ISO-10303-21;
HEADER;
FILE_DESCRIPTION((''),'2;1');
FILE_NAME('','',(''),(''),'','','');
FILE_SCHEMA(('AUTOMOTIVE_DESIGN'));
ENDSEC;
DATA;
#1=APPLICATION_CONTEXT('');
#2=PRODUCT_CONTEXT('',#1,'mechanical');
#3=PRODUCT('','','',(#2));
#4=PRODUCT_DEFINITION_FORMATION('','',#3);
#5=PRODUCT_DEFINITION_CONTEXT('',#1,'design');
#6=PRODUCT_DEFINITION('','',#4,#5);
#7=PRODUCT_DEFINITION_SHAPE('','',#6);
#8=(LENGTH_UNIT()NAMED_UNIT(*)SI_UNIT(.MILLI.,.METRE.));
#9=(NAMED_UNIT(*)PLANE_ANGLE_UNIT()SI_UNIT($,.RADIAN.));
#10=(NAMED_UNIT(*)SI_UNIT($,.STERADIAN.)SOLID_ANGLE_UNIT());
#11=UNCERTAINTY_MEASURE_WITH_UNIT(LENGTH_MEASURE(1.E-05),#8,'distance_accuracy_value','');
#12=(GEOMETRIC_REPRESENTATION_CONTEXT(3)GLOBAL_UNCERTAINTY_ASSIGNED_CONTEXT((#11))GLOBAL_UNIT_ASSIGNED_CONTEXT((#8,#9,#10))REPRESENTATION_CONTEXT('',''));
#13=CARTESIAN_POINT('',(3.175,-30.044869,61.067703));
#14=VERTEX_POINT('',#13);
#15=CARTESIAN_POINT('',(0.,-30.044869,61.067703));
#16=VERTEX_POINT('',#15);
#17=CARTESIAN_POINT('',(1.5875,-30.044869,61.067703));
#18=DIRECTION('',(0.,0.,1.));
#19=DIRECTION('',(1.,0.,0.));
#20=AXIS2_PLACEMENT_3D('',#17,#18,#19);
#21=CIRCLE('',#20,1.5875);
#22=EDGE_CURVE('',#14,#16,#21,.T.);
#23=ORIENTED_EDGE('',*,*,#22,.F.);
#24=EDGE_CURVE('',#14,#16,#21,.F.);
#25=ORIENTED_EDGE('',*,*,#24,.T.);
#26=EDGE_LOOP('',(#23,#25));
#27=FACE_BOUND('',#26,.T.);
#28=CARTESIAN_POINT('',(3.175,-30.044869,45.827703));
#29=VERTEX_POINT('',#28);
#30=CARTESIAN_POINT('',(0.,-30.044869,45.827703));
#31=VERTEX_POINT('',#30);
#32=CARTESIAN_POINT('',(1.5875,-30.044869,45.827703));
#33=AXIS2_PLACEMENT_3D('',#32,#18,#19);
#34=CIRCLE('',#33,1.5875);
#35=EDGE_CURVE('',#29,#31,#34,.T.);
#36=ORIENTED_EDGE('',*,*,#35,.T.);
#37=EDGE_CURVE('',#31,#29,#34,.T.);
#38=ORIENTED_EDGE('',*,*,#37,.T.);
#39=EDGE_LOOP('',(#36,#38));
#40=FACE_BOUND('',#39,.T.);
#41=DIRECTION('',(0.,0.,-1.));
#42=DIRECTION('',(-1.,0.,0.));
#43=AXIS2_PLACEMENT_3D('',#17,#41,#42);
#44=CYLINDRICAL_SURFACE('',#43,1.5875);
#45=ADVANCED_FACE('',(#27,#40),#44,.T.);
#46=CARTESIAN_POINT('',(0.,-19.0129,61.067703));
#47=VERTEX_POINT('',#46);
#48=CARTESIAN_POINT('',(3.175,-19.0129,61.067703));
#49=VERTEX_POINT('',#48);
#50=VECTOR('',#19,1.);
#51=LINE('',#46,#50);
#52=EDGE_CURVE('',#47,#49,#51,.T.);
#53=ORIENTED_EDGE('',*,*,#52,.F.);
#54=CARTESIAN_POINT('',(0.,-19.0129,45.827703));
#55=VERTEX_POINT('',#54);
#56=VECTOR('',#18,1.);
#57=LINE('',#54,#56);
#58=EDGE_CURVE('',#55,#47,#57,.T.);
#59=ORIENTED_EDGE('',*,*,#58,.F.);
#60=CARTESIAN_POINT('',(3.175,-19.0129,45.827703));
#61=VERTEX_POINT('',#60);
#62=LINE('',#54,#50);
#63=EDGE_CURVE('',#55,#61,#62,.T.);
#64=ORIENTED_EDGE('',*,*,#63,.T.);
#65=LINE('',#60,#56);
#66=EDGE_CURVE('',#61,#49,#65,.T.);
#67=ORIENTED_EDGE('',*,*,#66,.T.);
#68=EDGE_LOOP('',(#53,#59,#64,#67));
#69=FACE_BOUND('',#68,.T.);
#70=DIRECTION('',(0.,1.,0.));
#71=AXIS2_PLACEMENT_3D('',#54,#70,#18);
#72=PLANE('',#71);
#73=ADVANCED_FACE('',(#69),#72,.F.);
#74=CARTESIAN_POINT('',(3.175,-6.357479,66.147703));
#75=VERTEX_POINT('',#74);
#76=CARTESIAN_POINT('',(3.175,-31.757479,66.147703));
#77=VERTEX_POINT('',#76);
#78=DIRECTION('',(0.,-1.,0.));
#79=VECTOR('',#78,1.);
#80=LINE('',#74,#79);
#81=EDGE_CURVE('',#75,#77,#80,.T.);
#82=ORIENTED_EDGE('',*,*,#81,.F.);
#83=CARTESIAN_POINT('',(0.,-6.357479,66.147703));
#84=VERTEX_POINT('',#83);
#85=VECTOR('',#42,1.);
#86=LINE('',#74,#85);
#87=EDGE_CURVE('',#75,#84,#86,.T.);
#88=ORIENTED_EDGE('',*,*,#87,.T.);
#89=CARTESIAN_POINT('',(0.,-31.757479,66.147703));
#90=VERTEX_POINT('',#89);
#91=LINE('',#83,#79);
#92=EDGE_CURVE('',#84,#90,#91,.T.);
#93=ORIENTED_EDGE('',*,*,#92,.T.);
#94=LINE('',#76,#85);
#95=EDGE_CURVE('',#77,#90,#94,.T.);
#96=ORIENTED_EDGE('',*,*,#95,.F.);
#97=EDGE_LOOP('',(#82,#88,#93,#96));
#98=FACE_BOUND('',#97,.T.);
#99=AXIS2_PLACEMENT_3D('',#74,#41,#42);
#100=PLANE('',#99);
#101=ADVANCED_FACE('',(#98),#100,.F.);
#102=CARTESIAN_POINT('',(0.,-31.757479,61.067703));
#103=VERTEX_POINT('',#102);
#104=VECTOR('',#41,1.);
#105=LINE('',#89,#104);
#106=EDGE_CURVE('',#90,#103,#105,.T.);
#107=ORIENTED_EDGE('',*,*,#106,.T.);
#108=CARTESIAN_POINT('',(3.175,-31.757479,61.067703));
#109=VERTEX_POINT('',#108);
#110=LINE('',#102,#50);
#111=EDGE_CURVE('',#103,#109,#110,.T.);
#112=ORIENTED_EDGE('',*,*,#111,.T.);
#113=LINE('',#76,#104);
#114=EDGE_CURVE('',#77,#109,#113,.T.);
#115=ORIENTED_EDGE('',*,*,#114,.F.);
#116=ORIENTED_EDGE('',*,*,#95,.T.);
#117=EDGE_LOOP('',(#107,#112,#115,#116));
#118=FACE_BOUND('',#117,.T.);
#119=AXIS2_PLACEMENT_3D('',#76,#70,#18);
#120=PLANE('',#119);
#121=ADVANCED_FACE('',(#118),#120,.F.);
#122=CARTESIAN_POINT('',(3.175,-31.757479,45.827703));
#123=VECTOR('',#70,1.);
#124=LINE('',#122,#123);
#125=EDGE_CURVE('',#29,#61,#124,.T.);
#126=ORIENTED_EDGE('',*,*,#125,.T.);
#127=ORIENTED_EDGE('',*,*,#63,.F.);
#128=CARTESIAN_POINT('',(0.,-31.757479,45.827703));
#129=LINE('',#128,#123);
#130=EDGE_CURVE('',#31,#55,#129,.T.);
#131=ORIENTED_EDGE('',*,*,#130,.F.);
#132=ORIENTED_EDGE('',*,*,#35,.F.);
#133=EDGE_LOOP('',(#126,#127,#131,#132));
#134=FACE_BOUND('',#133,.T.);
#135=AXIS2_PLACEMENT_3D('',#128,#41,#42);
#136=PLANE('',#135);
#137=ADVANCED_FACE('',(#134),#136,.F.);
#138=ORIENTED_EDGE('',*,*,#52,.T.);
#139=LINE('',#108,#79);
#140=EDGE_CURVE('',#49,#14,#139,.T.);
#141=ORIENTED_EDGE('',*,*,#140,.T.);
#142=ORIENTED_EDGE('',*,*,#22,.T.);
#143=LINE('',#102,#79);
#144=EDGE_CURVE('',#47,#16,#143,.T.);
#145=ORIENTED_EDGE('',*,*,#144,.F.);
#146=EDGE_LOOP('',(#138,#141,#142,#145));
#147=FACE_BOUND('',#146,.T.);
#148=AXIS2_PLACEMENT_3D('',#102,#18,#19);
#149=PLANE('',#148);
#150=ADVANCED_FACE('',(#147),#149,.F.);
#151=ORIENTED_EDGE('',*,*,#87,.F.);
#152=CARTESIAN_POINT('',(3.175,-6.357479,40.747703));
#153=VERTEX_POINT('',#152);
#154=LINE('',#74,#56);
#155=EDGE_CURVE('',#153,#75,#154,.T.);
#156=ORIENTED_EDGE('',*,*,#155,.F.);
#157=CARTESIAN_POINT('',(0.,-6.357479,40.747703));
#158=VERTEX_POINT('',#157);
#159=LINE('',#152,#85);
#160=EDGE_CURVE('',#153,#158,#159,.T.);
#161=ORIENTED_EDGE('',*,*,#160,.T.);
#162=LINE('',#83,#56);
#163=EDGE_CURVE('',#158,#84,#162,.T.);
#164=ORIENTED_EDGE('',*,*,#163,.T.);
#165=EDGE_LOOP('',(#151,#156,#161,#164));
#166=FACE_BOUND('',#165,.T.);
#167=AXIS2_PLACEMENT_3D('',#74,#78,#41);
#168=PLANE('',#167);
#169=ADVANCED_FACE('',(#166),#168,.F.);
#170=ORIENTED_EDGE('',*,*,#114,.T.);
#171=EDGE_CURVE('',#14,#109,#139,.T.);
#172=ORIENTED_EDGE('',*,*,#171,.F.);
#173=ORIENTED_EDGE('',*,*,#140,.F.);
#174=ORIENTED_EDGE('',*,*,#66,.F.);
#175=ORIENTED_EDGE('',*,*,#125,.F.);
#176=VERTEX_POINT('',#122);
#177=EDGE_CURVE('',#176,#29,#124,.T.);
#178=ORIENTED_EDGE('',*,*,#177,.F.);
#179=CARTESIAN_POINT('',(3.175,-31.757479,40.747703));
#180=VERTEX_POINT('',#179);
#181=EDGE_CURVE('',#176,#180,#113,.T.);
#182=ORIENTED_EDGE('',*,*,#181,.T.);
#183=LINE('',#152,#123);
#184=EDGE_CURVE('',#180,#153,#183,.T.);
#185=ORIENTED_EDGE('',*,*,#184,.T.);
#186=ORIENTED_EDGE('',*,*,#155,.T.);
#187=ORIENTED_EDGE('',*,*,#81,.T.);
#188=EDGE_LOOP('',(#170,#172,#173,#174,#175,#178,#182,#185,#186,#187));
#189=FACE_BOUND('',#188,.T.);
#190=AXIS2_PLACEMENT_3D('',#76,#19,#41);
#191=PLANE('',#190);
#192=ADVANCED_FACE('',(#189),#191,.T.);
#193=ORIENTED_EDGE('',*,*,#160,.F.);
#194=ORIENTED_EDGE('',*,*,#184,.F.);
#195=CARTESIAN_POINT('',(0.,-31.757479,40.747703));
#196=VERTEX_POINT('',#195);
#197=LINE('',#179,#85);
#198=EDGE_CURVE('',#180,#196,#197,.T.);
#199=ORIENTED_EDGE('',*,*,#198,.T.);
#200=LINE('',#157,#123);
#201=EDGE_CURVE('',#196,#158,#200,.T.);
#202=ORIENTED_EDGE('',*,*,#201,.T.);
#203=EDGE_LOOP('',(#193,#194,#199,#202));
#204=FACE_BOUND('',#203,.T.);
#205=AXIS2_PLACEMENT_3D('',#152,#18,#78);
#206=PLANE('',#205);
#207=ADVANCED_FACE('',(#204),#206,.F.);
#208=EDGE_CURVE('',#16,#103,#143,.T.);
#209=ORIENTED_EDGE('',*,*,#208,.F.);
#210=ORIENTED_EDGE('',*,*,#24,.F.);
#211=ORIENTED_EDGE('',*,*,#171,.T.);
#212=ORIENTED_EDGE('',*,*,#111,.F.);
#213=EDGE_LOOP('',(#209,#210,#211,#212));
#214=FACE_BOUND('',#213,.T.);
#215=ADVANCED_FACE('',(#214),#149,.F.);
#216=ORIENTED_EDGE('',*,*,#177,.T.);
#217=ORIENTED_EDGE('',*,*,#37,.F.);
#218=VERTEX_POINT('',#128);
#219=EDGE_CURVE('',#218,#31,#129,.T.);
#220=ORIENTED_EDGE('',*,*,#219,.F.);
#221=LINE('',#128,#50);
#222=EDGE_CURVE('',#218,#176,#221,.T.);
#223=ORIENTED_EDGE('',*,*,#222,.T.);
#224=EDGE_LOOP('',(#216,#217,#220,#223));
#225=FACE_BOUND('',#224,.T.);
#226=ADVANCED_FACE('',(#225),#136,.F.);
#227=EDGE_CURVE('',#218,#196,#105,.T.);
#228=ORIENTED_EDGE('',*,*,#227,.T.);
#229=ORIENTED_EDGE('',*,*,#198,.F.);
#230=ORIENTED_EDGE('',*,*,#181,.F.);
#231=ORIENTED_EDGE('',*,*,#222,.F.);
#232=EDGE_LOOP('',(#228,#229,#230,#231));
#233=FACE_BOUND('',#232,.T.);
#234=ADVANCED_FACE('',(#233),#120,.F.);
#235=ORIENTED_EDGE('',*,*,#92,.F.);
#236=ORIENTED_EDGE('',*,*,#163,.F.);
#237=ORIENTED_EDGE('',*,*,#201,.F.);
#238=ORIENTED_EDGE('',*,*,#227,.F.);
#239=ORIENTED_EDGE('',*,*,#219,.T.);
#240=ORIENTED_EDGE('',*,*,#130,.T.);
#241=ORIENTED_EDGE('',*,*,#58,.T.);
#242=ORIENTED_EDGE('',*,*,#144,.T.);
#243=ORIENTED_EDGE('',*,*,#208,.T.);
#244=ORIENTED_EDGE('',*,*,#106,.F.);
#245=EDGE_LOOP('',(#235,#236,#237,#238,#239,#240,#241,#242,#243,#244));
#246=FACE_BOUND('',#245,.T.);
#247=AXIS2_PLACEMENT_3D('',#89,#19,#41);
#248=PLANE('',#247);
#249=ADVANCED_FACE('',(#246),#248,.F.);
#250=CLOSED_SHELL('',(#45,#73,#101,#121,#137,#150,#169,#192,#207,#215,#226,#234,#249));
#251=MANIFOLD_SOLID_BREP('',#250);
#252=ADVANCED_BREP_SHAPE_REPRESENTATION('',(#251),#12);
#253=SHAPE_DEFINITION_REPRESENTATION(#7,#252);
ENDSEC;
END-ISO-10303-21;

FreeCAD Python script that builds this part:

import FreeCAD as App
import Part
import Sketcher

V = App.Vector
Q = App.Units.Quantity

doc = App.newDocument("Part")
params = doc.addObject("Spreadsheet::Sheet", "Params")
for row, (alias, value) in enumerate([
    ("sketch1_width", "1 in"),
    ("pad1_length", "0.125 in"),
    ("sketch2_height", "0.6 in"),
    ("sketch3_diameter", "0.125 in"),
    ("pad2_length", "0.6 in"),
], start=1):
    params.set(f"A{row}", alias)
    params.set(f"B{row}", "=" + value)
    params.setAlias(f"B{row}", alias)

body = doc.addObject("PartDesign::Body", "Body")

# Sketch on YZ plane
sketch1 = body.newObject("Sketcher::SketchObject", "Sketch")
sketch1.AttachmentSupport = (doc.getObject("YZ_Plane"), [""])
sketch1.MapMode = "FlatFace"
sketch1.addGeometry([
    Part.LineSegment(V(-6, 66, 0), V(-32, 66, 0)),
    Part.LineSegment(V(-32, 66, 0), V(-32, 41, 0)),
    Part.LineSegment(V(-32, 41, 0), V(-6, 41, 0)),
    Part.LineSegment(V(-6, 41, 0), V(-6, 66, 0)),
], False)
sketch1.addConstraint([
    Sketcher.Constraint("Coincident", 0, 2, 1, 1),
    Sketcher.Constraint("Coincident", 1, 2, 2, 1),
    Sketcher.Constraint("Coincident", 2, 2, 3, 1),
    Sketcher.Constraint("Coincident", 3, 2, 0, 1),
    Sketcher.Constraint("Horizontal", 0),
    Sketcher.Constraint("Vertical", 1),
    Sketcher.Constraint("Horizontal", 2),
    Sketcher.Constraint("Vertical", 3),
    Sketcher.Constraint("Equal", 2, 1),
    Sketcher.Constraint("DistanceX", 0, 2, 0, 1, Q("1 in")),
    Sketcher.Constraint("DistanceX", 0, 2, -1, 1, Q("31.757479 mm")),
    Sketcher.Constraint("DistanceY", -1, 1, 0, 2, Q("66.147703 mm")),
])
sketch1.setExpression("Constraints[9]", "Params.sketch1_width")
pad1 = body.newObject("PartDesign::Pad", "Pad")
pad1.Profile = sketch1
pad1.setExpression("Length", "Params.pad1_length")

# Sketch on YZ plane
sketch2 = body.newObject("Sketcher::SketchObject", "Sketch001")
sketch2.AttachmentSupport = (doc.getObject("YZ_Plane"), [""])
sketch2.MapMode = "FlatFace"
sketch2.AttachmentOffset = App.Placement(V(0, 0, 0.125 * 25.4), App.Rotation())
sketch2.addGeometry([
    Part.LineSegment(V(-19, 61, 0), V(-32, 61, 0)),
    Part.LineSegment(V(-32, 61, 0), V(-32, 46, 0)),
    Part.LineSegment(V(-32, 46, 0), V(-19, 46, 0)),
    Part.LineSegment(V(-19, 46, 0), V(-19, 61, 0)),
], False)
sketch2.addConstraint([
    Sketcher.Constraint("Coincident", 0, 2, 1, 1),
    Sketcher.Constraint("Coincident", 1, 2, 2, 1),
    Sketcher.Constraint("Coincident", 2, 2, 3, 1),
    Sketcher.Constraint("Coincident", 3, 2, 0, 1),
    Sketcher.Constraint("Horizontal", 0),
    Sketcher.Constraint("Vertical", 1),
    Sketcher.Constraint("Horizontal", 2),
    Sketcher.Constraint("Vertical", 3),
    Sketcher.Constraint("DistanceY", 1, 2, 1, 1, Q("0.6 in")),
    Sketcher.Constraint("DistanceX", 0, 2, 0, 1, Q("12.74458 mm")),
    Sketcher.Constraint("DistanceX", 2, 2, -1, 1, Q("19.0129 mm")),
    Sketcher.Constraint("DistanceY", -1, 1, 0, 2, Q("61.067703 mm")),
])
sketch2.setExpression("Constraints[8]", "Params.sketch2_height")
pocket1 = body.newObject("PartDesign::Pocket", "Pocket")
pocket1.Profile = sketch2
pocket1.Type = "ThroughAll"

# Sketch on XY plane
sketch3 = body.newObject("Sketcher::SketchObject", "Sketch002")
sketch3.AttachmentSupport = (doc.getObject("XY_Plane"), [""])
sketch3.MapMode = "FlatFace"
sketch3.AttachmentOffset = App.Placement(V(0, 0, 45.827703), App.Rotation())
sketch3.addGeometry(Part.Circle(V(1.6, -30, 0), V(0, 0, 1), 1.6), False)
sketch3.addConstraint([
    Sketcher.Constraint("Diameter", 0, Q("0.125 in")),
    Sketcher.Constraint("DistanceX", -1, 1, 0, 3, Q("0.0625 in")),
    Sketcher.Constraint("DistanceY", 0, 3, -1, 1, Q("30.044869 mm")),
])
sketch3.setExpression("Constraints[0]", "Params.sketch3_diameter")
pad2 = body.newObject("PartDesign::Pad", "Pad001")
pad2.Profile = sketch3
pad2.setExpression("Length", "Params.pad2_length")

doc.recompute()
